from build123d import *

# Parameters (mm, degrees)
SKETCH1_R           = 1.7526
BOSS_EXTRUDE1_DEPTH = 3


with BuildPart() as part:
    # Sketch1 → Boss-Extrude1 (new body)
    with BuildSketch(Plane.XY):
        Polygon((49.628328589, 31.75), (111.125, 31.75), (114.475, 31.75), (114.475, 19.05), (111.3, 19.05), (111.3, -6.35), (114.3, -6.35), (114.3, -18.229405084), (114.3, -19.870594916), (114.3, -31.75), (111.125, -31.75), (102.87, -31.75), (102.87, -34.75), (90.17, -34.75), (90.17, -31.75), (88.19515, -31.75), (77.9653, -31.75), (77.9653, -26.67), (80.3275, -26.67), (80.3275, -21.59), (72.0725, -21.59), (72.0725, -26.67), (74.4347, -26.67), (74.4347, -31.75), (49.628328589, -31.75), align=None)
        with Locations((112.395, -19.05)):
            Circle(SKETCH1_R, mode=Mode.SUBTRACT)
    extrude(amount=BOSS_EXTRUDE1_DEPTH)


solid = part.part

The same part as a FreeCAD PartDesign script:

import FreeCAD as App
import Part
import Sketcher
from FreeCAD import Vector
Q = App.Units.Quantity

doc = App.newDocument("Part")
params = doc.addObject("Spreadsheet::Sheet", "Params")
for row, (alias, value) in enumerate([
    ("sketch1_height", "1 in"),
    ("sketch1_diameter", "0.138 in"),
    ("sketch1_width", "0.5 in"),
    ("sketch1_height2", "0.2 in"),
    ("sketch1_width2", "0.45 in"),
    ("pad1_length", "3 mm"),
], start=1):
    params.set(f"A{row}", alias)
    params.set(f"B{row}", "=" + value)
    params.setAlias(f"B{row}", alias)

body = doc.addObject("PartDesign::Body", "Body")

sketch1 = doc.addObject("Sketcher::SketchObject", "Sketch")
body.addObject(sketch1)
sketch1.AttachmentSupport = (doc.XY_Plane, [""])
sketch1.MapMode = "FlatFace"
sketch1.addGeometry([
    Part.LineSegment(Vector(114.5, 31.8, 0), Vector(49.6, 31.8, 0)),
    Part.LineSegment(Vector(49.6, 31.8, 0), Vector(49.6, -31.8, 0)),
    Part.LineSegment(Vector(49.6, -31.8, 0), Vector(74.4, -31.8, 0)),
    Part.LineSegment(Vector(74.4, -31.8, 0), Vector(74.4, -26.7, 0)),
    Part.LineSegment(Vector(74.4, -26.7, 0), Vector(72.1, -26.7, 0)),
    Part.LineSegment(Vector(72.1, -26.7, 0), Vector(72.1, -21.6, 0)),
    Part.LineSegment(Vector(72.1, -21.6, 0), Vector(80.3, -21.6, 0)),
    Part.LineSegment(Vector(80.3, -21.6, 0), Vector(80.3, -26.7, 0)),
    Part.LineSegment(Vector(80.3, -26.7, 0), Vector(78, -26.7, 0)),
    Part.LineSegment(Vector(78, -26.7, 0), Vector(78, -31.8, 0)),
    Part.LineSegment(Vector(78, -31.8, 0), Vector(90.2, -31.8, 0)),
    Part.LineSegment(Vector(90.2, -31.8, 0), Vector(90.2, -34.8, 0)),
    Part.LineSegment(Vector(90.2, -34.8, 0), Vector(102.9, -34.8, 0)),
    Part.LineSegment(Vector(102.9, -34.8, 0), Vector(102.9, -31.8, 0)),
    Part.LineSegment(Vector(102.9, -31.8, 0), Vector(114.3, -31.8, 0)),
    Part.LineSegment(Vector(114.3, -31.8, 0), Vector(114.3, -6.3, 0)),
    Part.LineSegment(Vector(114.3, -6.3, 0), Vector(111.3, -6.3, 0)),
    Part.LineSegment(Vector(111.3, -6.3, 0), Vector(111.3, 19.1, 0)),
    Part.LineSegment(Vector(111.3, 19.1, 0), Vector(114.5, 19.1, 0)),
    Part.LineSegment(Vector(114.5, 19.1, 0), Vector(114.5, 31.8, 0)),
    Part.Circle(Vector(112.4, -19.1, 0), Vector(0, 0, 1), 1.8),
], False)
sketch1.addConstraint([
    Sketcher.Constraint("Coincident", 0, 2, 1, 1),
    Sketcher.Constraint("Coincident", 1, 2, 2, 1),
    Sketcher.Constraint("Coincident", 2, 2, 3, 1),
    Sketcher.Constraint("Coincident", 3, 2, 4, 1),
    Sketcher.Constraint("Coincident", 4, 2, 5, 1),
    Sketcher.Constraint("Coincident", 5, 2, 6, 1),
    Sketcher.Constraint("Coincident", 6, 2, 7, 1),
    Sketcher.Constraint("Coincident", 7, 2, 8, 1),
    Sketcher.Constraint("Coincident", 8, 2, 9, 1),
    Sketcher.Constraint("Coincident", 9, 2, 10, 1),
    Sketcher.Constraint("Coincident", 10, 2, 11, 1),
    Sketcher.Constraint("Coincident", 11, 2, 12, 1),
    Sketcher.Constraint("Coincident", 12, 2, 13, 1),
    Sketcher.Constraint("Coincident", 13, 2, 14, 1),
    Sketcher.Constraint("Coincident", 14, 2, 15, 1),
    Sketcher.Constraint("Coincident", 15, 2, 16, 1),
    Sketcher.Constraint("Coincident", 16, 2, 17, 1),
    Sketcher.Constraint("Coincident", 17, 2, 18, 1),
    Sketcher.Constraint("Coincident", 18, 2, 19, 1),
    Sketcher.Constraint("Coincident", 19, 2, 0, 1),
    Sketcher.Constraint("Horizontal", 0),
    Sketcher.Constraint("Vertical", 1),
    Sketcher.Constraint("Horizontal", 2),
    Sketcher.Constraint("Vertical", 3),
    Sketcher.Constraint("Horizontal", 4),
    Sketcher.Constraint("Vertical", 5),
    Sketcher.Constraint("Horizontal", 6),
    Sketcher.Constraint("Vertical", 7),
    Sketcher.Constraint("Horizontal", 8),
    Sketcher.Constraint("Vertical", 9),
    Sketcher.Constraint("Horizontal", 10),
    Sketcher.Constraint("Vertical", 11),
    Sketcher.Constraint("Horizontal", 12),
    Sketcher.Constraint("Vertical", 13),
    Sketcher.Constraint("Horizontal", 14),
    Sketcher.Constraint("Vertical", 15),
    Sketcher.Constraint("Horizontal", 16),
    Sketcher.Constraint("Vertical", 17),
    Sketcher.Constraint("Horizontal", 18),
    Sketcher.Constraint("Vertical", 19),
    Sketcher.Constraint("Horizontal", 4, 2, 7, 2),
    Sketcher.Constraint("Horizontal", 2, 2, 9, 2),
    Sketcher.Constraint("Horizontal", 10, 2, 13, 2),
    Sketcher.Constraint("Equal", 4, 8),
    Sketcher.Constraint("Equal", 3, 5),
    Sketcher.Constraint("Equal", 16, 11),
    Sketcher.Constraint("Equal", 15, 17),
    Sketcher.Constraint("Equal", 12, 19),
    Sketcher.Constraint("DistanceY", 15, 1, 15, 2, Q("1 in")),
    Sketcher.Constraint("Diameter", 20, Q("0.138 in")),
    Sketcher.Constraint("DistanceX", 12, 1, 12, 2, Q("0.5 in")),
    Sketcher.Constraint("DistanceY", 3, 1, 3, 2, Q("0.2 in")),
    Sketcher.Constraint("DistanceY", 20, 3, 0, 2, Q("2 in")),
    Sketcher.Constraint("DistanceX", 14, 1, 14, 2, Q("0.45 in")),
    Sketcher.Constraint("DistanceX", -1, 1, 14, 2, Q("4.5 in")),
    Sketcher.Constraint("DistanceX", 4, 2, 4, 1, Q("0.093 in")),
    Sketcher.Constraint("DistanceX", 6, 1, 6, 2, Q("0.325 in")),
    Sketcher.Constraint("DistanceX", 18, 1, 18, 2, Q("0.125 in")),
    Sketcher.Constraint("DistanceY", 20, 3, -1, 1, Q("0.75 in")),
    Sketcher.Constraint("DistanceX", 10, 1, 10, 2, Q("0.4805 in")),
    Sketcher.Constraint("DistanceX", -1, 1, 20, 3, Q("4.425 in")),
    Sketcher.Constraint("DistanceX", 16, 2, 16, 1, Q("3 mm")),
    Sketcher.Constraint("DistanceX", 0, 2, 0, 1, Q("64.846671 mm")),
])
sketch1.setExpression("Constraints[48]", "Params.sketch1_height")
sketch1.setExpression("Constraints[49]", "Params.sketch1_diameter")
sketch1.setExpression("Constraints[50]", "Params.sketch1_width")
sketch1.setExpression("Constraints[51]", "Params.sketch1_height2")
sketch1.setExpression("Constraints[53]", "Params.sketch1_width2")
pad1 = doc.addObject("PartDesign::Pad", "Pad")
body.addObject(pad1)
pad1.Profile = sketch1
pad1.setExpression("Length", "Params.pad1_length")

doc.recompute()
